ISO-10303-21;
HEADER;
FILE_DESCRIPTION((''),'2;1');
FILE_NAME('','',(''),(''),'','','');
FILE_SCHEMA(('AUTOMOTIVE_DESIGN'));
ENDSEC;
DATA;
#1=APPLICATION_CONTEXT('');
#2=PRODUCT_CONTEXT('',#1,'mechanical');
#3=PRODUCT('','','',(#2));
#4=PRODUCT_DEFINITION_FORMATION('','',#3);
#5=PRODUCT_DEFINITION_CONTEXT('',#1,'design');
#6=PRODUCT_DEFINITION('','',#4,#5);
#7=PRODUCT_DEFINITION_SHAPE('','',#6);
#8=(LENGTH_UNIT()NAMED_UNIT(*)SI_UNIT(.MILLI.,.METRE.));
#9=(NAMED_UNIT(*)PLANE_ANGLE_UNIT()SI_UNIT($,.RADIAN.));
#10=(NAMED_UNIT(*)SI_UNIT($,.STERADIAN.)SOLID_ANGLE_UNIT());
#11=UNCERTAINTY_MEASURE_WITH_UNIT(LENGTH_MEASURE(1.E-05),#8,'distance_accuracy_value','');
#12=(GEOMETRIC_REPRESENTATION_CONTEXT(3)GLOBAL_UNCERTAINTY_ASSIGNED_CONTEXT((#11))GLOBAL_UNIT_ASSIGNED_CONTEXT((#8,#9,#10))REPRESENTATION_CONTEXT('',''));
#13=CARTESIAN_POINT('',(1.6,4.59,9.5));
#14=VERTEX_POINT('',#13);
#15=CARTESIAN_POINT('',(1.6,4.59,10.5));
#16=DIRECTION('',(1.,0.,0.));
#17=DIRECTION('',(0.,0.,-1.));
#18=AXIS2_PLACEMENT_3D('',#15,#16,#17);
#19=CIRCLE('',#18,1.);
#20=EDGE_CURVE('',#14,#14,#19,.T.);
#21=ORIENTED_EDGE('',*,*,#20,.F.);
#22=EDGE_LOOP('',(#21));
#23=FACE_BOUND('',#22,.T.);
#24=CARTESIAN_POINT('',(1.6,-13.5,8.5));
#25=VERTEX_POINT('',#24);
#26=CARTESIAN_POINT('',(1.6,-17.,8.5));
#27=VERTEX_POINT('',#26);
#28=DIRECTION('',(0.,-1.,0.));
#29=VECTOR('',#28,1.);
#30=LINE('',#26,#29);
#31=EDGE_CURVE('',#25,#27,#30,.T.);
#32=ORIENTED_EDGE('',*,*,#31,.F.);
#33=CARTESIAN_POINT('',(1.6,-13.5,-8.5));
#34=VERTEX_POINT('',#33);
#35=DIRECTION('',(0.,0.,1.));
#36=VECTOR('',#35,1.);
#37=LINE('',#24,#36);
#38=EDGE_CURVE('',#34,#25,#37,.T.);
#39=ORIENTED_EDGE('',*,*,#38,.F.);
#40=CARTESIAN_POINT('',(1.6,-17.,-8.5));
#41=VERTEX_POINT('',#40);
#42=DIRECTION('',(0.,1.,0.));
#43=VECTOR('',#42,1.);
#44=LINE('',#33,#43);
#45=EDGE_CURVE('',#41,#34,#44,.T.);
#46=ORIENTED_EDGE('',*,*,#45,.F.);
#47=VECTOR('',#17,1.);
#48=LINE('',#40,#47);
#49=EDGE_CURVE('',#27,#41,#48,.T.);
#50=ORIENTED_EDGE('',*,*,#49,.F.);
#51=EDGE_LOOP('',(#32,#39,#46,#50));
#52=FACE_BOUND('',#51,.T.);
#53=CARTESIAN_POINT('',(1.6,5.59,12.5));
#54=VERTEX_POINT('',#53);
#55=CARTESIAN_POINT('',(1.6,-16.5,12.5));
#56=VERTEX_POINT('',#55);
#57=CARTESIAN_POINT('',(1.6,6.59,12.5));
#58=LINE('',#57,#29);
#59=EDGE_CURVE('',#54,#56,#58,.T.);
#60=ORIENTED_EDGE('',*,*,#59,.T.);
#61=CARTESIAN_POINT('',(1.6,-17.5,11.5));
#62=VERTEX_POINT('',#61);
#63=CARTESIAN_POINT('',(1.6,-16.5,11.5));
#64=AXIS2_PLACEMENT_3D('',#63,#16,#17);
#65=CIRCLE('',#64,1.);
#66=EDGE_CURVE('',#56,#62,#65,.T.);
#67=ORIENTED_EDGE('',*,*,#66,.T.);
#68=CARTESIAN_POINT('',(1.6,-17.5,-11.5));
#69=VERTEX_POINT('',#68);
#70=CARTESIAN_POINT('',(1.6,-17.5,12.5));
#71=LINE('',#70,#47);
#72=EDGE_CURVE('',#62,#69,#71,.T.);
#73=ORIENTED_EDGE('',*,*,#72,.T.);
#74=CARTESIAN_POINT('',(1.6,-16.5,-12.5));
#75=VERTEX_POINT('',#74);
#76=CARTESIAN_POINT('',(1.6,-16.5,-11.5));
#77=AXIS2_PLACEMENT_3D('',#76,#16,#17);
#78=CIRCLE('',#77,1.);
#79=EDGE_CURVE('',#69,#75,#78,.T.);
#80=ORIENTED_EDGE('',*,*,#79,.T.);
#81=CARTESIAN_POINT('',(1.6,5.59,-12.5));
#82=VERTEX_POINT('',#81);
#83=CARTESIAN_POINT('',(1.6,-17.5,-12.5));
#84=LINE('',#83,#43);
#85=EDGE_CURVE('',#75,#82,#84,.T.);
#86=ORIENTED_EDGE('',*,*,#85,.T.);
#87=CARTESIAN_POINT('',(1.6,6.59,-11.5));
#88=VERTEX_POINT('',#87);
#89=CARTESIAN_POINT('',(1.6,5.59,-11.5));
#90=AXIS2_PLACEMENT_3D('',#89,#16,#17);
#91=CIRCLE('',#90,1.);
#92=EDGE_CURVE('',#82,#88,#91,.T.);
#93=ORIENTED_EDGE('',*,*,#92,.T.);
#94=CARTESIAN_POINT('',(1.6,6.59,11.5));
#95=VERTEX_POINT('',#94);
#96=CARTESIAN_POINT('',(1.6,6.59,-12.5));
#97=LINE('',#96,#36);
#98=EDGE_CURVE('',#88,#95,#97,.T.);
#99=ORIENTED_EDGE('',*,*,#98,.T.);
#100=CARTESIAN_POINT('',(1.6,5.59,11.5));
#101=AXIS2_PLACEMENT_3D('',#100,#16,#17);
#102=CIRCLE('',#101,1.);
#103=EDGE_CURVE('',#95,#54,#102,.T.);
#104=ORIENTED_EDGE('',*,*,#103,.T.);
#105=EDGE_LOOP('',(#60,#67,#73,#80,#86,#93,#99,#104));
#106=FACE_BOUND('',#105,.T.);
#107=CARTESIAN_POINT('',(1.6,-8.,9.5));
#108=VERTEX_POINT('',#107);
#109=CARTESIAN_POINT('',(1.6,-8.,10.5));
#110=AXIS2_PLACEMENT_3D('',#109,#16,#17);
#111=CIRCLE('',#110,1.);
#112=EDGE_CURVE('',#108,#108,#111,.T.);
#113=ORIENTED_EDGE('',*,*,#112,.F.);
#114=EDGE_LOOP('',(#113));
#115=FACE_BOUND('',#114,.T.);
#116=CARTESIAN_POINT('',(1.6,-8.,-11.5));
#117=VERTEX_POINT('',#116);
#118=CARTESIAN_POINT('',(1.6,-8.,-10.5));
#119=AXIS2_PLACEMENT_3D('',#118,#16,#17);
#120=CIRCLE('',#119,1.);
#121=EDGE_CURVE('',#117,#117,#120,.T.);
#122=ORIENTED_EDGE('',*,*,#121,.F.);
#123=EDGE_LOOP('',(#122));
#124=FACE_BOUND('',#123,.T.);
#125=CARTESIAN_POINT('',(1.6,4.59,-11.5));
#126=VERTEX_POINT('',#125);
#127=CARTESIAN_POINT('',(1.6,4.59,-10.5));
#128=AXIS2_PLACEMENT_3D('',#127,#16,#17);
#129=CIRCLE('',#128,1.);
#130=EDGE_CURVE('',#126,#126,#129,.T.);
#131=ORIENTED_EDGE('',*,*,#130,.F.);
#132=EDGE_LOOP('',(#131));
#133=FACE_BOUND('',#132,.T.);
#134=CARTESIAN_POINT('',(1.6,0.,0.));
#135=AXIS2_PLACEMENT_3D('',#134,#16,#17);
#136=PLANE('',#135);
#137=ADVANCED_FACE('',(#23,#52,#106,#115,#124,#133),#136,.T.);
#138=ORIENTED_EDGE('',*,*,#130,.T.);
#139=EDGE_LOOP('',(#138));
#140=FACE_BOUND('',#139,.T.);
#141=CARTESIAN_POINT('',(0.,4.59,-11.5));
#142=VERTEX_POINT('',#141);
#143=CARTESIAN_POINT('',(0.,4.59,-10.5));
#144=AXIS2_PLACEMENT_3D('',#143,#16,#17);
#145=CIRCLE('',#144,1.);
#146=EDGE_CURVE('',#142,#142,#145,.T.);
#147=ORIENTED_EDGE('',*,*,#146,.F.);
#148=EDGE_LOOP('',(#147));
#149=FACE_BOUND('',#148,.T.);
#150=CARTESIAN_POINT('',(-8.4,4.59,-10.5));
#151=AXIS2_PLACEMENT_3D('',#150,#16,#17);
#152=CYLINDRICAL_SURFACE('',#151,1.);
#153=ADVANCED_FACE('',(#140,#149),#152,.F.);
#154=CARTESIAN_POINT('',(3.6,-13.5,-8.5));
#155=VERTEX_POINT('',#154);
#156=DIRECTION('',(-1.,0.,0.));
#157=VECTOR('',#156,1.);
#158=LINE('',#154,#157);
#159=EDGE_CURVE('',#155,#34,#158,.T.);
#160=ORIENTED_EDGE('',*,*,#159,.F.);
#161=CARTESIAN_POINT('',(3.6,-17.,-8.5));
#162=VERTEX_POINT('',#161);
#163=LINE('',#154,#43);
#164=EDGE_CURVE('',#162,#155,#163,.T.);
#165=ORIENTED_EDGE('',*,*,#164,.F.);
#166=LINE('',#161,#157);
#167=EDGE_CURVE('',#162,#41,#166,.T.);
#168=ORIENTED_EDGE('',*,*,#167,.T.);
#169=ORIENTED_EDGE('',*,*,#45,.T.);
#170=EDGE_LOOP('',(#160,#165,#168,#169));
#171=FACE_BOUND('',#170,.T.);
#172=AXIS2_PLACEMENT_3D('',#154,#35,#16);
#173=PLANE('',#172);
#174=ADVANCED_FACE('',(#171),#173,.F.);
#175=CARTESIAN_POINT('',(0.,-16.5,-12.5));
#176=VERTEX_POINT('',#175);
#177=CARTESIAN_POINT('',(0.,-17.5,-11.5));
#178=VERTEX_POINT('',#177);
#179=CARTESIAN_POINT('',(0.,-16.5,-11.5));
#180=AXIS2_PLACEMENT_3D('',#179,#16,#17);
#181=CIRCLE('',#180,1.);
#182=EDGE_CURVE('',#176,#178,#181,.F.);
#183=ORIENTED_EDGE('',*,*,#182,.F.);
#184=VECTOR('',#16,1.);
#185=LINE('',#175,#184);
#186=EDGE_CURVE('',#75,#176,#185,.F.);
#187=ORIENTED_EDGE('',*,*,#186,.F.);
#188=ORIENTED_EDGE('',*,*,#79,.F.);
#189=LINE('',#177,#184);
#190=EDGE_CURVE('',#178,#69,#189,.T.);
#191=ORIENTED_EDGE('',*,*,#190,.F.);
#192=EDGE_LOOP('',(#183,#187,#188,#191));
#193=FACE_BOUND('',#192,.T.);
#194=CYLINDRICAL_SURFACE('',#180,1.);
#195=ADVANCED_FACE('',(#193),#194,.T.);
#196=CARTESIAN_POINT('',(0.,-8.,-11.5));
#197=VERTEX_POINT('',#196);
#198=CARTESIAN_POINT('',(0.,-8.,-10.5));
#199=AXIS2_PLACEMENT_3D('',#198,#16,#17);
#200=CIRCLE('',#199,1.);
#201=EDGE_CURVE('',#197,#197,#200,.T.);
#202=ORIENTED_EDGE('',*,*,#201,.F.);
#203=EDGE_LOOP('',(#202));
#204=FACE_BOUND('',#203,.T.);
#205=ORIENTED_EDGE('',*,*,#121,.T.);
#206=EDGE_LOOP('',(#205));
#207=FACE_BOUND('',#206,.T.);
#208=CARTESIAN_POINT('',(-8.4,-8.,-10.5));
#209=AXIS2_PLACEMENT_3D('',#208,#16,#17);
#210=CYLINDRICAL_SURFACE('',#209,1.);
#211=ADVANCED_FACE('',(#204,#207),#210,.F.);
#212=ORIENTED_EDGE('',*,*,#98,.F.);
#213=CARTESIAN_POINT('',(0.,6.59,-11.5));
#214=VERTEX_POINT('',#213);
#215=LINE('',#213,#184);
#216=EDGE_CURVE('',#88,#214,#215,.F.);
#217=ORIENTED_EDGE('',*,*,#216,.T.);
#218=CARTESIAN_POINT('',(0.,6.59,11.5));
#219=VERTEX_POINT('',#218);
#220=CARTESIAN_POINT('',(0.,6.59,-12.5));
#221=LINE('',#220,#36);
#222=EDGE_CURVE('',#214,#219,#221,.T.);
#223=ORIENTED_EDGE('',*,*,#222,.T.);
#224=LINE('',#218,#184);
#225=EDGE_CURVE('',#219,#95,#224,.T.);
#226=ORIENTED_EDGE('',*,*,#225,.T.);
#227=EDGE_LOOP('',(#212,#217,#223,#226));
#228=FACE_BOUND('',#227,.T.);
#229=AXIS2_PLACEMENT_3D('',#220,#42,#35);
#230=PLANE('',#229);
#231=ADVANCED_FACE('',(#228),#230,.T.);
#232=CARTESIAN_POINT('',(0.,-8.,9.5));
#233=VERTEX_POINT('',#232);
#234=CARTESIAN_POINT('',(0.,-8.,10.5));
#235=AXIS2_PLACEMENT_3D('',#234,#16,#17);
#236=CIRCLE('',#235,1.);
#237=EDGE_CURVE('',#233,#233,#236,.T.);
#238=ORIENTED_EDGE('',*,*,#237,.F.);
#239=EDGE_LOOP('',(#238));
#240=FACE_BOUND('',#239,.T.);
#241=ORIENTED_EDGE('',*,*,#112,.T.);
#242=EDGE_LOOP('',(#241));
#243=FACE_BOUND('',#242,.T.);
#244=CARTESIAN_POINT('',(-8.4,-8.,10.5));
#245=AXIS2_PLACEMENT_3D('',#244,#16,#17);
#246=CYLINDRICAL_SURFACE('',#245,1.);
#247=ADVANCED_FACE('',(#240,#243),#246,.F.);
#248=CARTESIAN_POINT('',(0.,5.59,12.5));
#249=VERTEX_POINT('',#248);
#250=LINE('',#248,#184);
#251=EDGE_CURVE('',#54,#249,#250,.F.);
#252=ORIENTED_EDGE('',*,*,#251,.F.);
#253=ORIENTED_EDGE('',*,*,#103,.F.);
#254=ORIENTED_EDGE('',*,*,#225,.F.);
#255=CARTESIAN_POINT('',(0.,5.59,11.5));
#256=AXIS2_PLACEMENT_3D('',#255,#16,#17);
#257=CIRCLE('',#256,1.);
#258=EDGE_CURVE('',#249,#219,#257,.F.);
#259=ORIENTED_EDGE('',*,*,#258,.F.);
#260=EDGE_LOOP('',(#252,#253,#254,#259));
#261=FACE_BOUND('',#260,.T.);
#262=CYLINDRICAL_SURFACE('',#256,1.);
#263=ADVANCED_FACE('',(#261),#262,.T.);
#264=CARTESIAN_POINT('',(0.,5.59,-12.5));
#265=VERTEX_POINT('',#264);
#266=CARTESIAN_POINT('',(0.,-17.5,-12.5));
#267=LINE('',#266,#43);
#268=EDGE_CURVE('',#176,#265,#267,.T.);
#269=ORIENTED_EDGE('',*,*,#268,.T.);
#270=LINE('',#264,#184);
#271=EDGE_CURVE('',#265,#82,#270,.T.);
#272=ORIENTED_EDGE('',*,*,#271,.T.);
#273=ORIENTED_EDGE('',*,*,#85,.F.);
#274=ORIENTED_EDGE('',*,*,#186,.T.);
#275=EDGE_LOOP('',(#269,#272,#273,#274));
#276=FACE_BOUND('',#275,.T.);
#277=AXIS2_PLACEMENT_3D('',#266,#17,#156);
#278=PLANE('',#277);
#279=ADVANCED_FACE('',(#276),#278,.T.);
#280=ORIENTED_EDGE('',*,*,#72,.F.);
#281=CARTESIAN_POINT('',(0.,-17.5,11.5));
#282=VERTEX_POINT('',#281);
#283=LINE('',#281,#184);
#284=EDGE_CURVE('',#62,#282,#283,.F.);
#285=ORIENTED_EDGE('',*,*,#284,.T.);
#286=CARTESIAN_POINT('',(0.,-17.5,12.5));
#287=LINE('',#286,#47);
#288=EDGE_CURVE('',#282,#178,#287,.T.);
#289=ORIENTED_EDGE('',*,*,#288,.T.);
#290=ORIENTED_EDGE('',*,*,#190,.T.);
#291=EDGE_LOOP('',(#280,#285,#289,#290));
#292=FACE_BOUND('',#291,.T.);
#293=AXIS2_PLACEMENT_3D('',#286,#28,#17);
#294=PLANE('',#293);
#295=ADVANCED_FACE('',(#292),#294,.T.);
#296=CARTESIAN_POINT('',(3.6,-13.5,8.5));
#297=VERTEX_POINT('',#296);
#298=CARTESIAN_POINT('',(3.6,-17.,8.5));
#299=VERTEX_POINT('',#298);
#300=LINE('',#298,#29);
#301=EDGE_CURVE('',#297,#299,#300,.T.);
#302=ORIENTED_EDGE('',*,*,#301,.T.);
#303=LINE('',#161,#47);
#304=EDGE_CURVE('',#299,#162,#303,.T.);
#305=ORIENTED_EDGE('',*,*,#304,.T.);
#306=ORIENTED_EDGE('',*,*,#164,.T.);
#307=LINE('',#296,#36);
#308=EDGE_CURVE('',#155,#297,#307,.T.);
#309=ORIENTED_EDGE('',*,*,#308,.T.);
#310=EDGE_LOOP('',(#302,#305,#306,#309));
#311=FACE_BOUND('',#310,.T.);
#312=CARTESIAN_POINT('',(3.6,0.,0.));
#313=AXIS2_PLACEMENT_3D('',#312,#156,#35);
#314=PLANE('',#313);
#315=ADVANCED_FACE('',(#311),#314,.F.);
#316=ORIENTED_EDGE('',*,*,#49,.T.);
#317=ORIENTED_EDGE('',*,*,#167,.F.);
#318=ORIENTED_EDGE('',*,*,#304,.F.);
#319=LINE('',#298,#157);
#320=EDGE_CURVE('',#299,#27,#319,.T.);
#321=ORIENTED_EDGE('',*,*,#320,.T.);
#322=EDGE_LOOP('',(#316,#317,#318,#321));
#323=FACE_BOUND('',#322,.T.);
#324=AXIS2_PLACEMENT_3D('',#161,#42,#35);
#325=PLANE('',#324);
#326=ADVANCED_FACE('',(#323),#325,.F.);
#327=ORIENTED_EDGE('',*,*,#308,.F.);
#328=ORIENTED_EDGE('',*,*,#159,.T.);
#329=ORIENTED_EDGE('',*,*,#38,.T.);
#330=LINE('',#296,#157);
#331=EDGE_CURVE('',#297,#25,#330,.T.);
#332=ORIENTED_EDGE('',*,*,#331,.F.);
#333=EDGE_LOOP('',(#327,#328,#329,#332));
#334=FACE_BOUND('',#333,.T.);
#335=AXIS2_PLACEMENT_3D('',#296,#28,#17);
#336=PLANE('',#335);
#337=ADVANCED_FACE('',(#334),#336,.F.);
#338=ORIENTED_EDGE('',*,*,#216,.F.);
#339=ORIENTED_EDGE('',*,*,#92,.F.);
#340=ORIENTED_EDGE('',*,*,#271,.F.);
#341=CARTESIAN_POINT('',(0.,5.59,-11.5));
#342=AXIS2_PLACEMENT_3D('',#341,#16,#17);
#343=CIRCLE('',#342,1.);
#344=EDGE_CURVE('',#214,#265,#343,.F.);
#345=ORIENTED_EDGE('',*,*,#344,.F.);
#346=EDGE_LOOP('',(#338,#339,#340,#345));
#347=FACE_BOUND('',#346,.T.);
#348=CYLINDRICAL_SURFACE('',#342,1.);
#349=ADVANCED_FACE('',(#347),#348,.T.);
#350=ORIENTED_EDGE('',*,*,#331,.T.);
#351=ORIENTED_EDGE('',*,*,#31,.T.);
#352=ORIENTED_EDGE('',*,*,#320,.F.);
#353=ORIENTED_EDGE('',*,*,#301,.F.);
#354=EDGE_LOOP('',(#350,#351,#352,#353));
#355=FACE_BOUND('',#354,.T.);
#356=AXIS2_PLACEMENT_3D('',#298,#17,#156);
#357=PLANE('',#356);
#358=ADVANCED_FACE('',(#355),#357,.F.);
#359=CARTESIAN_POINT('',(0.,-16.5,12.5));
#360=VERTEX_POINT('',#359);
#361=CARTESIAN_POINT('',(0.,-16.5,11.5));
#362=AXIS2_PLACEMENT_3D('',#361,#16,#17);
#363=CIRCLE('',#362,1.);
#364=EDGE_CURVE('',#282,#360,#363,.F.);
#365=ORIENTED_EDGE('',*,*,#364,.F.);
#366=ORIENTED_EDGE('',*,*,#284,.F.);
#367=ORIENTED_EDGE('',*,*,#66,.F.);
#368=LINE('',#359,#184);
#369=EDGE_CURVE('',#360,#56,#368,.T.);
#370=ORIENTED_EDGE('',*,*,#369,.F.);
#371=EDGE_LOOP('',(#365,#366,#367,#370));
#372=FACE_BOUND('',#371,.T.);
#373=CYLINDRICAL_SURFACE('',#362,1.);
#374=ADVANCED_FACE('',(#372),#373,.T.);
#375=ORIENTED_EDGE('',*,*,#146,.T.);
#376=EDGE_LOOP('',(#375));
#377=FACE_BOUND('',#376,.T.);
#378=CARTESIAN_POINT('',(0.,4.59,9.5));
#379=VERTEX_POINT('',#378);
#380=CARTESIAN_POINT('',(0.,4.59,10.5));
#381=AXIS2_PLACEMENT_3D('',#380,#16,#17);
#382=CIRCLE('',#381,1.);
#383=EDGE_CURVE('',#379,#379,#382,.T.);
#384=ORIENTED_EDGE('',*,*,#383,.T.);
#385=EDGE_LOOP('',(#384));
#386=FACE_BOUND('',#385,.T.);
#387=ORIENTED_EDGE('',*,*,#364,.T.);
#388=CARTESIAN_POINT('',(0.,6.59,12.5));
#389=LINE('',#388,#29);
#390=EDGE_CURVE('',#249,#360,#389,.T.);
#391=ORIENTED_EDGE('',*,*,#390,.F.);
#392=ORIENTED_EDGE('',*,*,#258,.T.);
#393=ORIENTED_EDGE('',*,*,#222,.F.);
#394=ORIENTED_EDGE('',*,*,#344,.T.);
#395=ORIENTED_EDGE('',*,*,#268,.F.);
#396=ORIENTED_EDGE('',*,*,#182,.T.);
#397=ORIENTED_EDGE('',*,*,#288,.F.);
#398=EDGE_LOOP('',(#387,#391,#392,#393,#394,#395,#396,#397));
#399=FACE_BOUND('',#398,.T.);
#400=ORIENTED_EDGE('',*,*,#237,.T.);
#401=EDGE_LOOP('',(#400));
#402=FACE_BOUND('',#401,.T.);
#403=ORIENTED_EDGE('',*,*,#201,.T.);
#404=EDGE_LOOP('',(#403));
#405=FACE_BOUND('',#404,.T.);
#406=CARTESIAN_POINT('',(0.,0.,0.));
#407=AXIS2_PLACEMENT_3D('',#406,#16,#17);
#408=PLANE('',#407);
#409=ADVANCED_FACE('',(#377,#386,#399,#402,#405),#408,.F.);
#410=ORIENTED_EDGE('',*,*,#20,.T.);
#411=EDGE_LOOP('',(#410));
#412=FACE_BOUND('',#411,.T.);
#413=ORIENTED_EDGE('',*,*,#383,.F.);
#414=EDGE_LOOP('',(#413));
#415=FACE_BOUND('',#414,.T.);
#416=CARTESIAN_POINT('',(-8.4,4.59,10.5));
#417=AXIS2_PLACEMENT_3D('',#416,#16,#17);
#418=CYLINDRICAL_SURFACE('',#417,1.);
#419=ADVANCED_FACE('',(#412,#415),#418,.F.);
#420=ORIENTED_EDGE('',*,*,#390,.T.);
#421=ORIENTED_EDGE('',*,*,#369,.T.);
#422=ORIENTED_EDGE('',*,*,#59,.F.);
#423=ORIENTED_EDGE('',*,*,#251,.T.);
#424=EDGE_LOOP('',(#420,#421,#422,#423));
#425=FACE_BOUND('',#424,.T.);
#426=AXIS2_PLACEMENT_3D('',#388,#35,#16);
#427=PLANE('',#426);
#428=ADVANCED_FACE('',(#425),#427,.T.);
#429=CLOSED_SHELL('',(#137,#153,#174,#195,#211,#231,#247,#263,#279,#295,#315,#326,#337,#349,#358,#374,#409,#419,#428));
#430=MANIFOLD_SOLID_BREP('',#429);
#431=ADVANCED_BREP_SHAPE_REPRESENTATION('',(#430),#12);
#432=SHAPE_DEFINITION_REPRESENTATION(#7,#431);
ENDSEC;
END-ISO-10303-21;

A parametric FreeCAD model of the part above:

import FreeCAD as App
import Part
import Sketcher


def edges_at(feature, points):
    """Names of the edges that pass closest to the given points."""
    edges = feature.Shape.Edges
    near = lambda p: min(range(len(edges)), key=lambda i: edges[i].distToShape(Part.Vertex(*p))[0])
    return sorted({f"Edge{near(p) + 1}" for p in points})

doc = App.newDocument("Part")
params = doc.addObject("Spreadsheet::Sheet", "Params")
for row, (alias, value) in enumerate([
    ("sketch1_height", "25 mm"),
    ("sketch1_width", "24.09 mm"),
    ("pad1_length", "1.6 mm"),
    ("sketch2_height", "17 mm"),
    ("sketch2_width", "3.5 mm"),
    ("pad2_length", "2 mm"),
    ("fillet_radius", "1 mm"),
    ("sketch3_diameter", "2 mm"),
    ("pocket1_length", "10 mm"),
], start=1):
    params.set(f"A{row}", alias)
    params.set(f"B{row}", "=" + value)
    params.setAlias(f"B{row}", alias)

body = doc.addObject("PartDesign::Body", "Body")

# Sketch on YZ plane
sketch1 = doc.addObject("Sketcher::SketchObject", "Sketch")
body.addObject(sketch1)
sketch1.AttachmentSupport = (doc.YZ_Plane, [""])
sketch1.MapMode = "FlatFace"
sketch1.AttachmentOffset = App.Placement(App.Vector(0, 0, 1.6), App.Rotation())
sketch1.addGeometry([
    Part.LineSegment(App.Vector(6.59, 12.5, 0), App.Vector(-17.5, 12.5, 0)),
    Part.LineSegment(App.Vector(-17.5, 12.5, 0), App.Vector(-17.5, -12.5, 0)),
    Part.LineSegment(App.Vector(-17.5, -12.5, 0), App.Vector(6.59, -12.5, 0)),
    Part.LineSegment(App.Vector(6.59, -12.5, 0), App.Vector(6.59, 12.5, 0)),
], False)
sketch1.addConstraint([
    Sketcher.Constraint("Coincident", 0, 2, 1, 1),
    Sketcher.Constraint("Coincident", 1, 2, 2, 1),
    Sketcher.Constraint("Coincident", 2, 2, 3, 1),
    Sketcher.Constraint("Coincident", 3, 2, 0, 1),
    Sketcher.Constraint("Horizontal", 0),
    Sketcher.Constraint("Vertical", 1),
    Sketcher.Constraint("Horizontal", 2),
    Sketcher.Constraint("Vertical", 3),
    Sketcher.Constraint("DistanceY", 1, 2, 1, 1, 25.0),
    Sketcher.Constraint("DistanceX", 0, 2, 0, 1, 24.09),
    Sketcher.Constraint("DistanceX", 0, 2, -1, 1, 17.5),
    Sketcher.Constraint("DistanceY", -1, 1, 0, 2, 12.5),
])
sketch1.setExpression("Constraints[8]", "Params.sketch1_height")
sketch1.setExpression("Constraints[9]", "Params.sketch1_width")
pad1 = doc.addObject("PartDesign::Pad", "Pad")
body.addObject(pad1)
pad1.Profile = sketch1
pad1.setExpression("Length", "Params.pad1_length")
pad1.Reversed = True

# Sketch on YZ plane
sketch2 = doc.addObject("Sketcher::SketchObject", "Sketch001")
body.addObject(sketch2)
sketch2.AttachmentSupport = (doc.YZ_Plane, [""])
sketch2.MapMode = "FlatFace"
sketch2.AttachmentOffset = App.Placement(App.Vector(0, 0, 1.6), App.Rotation())
sketch2.addGeometry([
    Part.LineSegment(App.Vector(-13.5, 8.5, 0), App.Vector(-17, 8.5, 0)),
    Part.LineSegment(App.Vector(-17, 8.5, 0), App.Vector(-17, -8.5, 0)),
    Part.LineSegment(App.Vector(-17, -8.5, 0), App.Vector(-13.5, -8.5, 0)),
    Part.LineSegment(App.Vector(-13.5, -8.5, 0), App.Vector(-13.5, 8.5, 0)),
], False)
sketch2.addConstraint([
    Sketcher.Constraint("Coincident", 0, 2, 1, 1),
    Sketcher.Constraint("Coincident", 1, 2, 2, 1),
    Sketcher.Constraint("Coincident", 2, 2, 3, 1),
    Sketcher.Constraint("Coincident", 3, 2, 0, 1),
    Sketcher.Constraint("Horizontal", 0),
    Sketcher.Constraint("Vertical", 1),
    Sketcher.Constraint("Horizontal", 2),
    Sketcher.Constraint("Vertical", 3),
    Sketcher.Constraint("DistanceY", 1, 2, 1, 1, 17.0),
    Sketcher.Constraint("DistanceX", 0, 2, 0, 1, 3.5),
    Sketcher.Constraint("DistanceX", 0, 2, -1, 1, 17.0),
    Sketcher.Constraint("DistanceY", -1, 1, 0, 2, 8.5),
])
sketch2.setExpression("Constraints[8]", "Params.sketch2_height")
sketch2.setExpression("Constraints[9]", "Params.sketch2_width")
pad2 = doc.addObject("PartDesign::Pad", "Pad001")
body.addObject(pad2)
pad2.Profile = sketch2
pad2.setExpression("Length", "Params.pad2_length")
doc.recompute()

fillet = doc.addObject("PartDesign::Fillet", "Fillet")
body.addObject(fillet)
fillet.Base = (pad2, edges_at(pad2, [
    (0.8, 6.59, -12.5),
    (0.8, -17.5, -12.5),
    (0.8, -17.5, 12.5),
    (0.8, 6.59, 12.5),
]))
fillet.setExpression("Radius", "Params.fillet_radius")

# Sketch on YZ plane
sketch3 = doc.addObject("Sketcher::SketchObject", "Sketch002")
body.addObject(sketch3)
sketch3.AttachmentSupport = (doc.YZ_Plane, [""])
sketch3.MapMode = "FlatFace"
sketch3.AttachmentOffset = App.Placement(App.Vector(0, 0, 1.6), App.Rotation())
sketch3.addGeometry([
    Part.Circle(App.Vector(4.59, -10.5, 0), App.Vector(0, 0, 1), 1),
    Part.Circle(App.Vector(4.59, 10.5, 0), App.Vector(0, 0, 1), 1),
    Part.Circle(App.Vector(-8, 10.5, 0), App.Vector(0, 0, 1), 1),
    Part.Circle(App.Vector(-8, -10.5, 0), App.Vector(0, 0, 1), 1),
], False)
sketch3.addConstraint([
    Sketcher.Constraint("Equal", 0, 1),
    Sketcher.Constraint("Equal", 1, 2),
    Sketcher.Constraint("Equal", 2, 3),
    Sketcher.Constraint("Symmetric", 0, 3, 1, 3, -1),
    Sketcher.Constraint("Symmetric", 2, 3, 3, 3, -1),
    Sketcher.Constraint("Horizontal", 1, 3, 2, 3),
    Sketcher.Constraint("Diameter", 0, 2.0),
    Sketcher.Constraint("DistanceX", 2, 3, -1, 1, 8.0),
    Sketcher.Constraint("DistanceY", 0, 3, 1, 3, 21.0),
    Sketcher.Constraint("DistanceX", -1, 1, 0, 3, 4.59),
])
sketch3.setExpression("Constraints[6]", "Params.sketch3_diameter")
pocket1 = doc.addObject("PartDesign::Pocket", "Pocket")
body.addObject(pocket1)
pocket1.Profile = sketch3
pocket1.setExpression("Length", "Params.pocket1_length")

doc.recompute()
